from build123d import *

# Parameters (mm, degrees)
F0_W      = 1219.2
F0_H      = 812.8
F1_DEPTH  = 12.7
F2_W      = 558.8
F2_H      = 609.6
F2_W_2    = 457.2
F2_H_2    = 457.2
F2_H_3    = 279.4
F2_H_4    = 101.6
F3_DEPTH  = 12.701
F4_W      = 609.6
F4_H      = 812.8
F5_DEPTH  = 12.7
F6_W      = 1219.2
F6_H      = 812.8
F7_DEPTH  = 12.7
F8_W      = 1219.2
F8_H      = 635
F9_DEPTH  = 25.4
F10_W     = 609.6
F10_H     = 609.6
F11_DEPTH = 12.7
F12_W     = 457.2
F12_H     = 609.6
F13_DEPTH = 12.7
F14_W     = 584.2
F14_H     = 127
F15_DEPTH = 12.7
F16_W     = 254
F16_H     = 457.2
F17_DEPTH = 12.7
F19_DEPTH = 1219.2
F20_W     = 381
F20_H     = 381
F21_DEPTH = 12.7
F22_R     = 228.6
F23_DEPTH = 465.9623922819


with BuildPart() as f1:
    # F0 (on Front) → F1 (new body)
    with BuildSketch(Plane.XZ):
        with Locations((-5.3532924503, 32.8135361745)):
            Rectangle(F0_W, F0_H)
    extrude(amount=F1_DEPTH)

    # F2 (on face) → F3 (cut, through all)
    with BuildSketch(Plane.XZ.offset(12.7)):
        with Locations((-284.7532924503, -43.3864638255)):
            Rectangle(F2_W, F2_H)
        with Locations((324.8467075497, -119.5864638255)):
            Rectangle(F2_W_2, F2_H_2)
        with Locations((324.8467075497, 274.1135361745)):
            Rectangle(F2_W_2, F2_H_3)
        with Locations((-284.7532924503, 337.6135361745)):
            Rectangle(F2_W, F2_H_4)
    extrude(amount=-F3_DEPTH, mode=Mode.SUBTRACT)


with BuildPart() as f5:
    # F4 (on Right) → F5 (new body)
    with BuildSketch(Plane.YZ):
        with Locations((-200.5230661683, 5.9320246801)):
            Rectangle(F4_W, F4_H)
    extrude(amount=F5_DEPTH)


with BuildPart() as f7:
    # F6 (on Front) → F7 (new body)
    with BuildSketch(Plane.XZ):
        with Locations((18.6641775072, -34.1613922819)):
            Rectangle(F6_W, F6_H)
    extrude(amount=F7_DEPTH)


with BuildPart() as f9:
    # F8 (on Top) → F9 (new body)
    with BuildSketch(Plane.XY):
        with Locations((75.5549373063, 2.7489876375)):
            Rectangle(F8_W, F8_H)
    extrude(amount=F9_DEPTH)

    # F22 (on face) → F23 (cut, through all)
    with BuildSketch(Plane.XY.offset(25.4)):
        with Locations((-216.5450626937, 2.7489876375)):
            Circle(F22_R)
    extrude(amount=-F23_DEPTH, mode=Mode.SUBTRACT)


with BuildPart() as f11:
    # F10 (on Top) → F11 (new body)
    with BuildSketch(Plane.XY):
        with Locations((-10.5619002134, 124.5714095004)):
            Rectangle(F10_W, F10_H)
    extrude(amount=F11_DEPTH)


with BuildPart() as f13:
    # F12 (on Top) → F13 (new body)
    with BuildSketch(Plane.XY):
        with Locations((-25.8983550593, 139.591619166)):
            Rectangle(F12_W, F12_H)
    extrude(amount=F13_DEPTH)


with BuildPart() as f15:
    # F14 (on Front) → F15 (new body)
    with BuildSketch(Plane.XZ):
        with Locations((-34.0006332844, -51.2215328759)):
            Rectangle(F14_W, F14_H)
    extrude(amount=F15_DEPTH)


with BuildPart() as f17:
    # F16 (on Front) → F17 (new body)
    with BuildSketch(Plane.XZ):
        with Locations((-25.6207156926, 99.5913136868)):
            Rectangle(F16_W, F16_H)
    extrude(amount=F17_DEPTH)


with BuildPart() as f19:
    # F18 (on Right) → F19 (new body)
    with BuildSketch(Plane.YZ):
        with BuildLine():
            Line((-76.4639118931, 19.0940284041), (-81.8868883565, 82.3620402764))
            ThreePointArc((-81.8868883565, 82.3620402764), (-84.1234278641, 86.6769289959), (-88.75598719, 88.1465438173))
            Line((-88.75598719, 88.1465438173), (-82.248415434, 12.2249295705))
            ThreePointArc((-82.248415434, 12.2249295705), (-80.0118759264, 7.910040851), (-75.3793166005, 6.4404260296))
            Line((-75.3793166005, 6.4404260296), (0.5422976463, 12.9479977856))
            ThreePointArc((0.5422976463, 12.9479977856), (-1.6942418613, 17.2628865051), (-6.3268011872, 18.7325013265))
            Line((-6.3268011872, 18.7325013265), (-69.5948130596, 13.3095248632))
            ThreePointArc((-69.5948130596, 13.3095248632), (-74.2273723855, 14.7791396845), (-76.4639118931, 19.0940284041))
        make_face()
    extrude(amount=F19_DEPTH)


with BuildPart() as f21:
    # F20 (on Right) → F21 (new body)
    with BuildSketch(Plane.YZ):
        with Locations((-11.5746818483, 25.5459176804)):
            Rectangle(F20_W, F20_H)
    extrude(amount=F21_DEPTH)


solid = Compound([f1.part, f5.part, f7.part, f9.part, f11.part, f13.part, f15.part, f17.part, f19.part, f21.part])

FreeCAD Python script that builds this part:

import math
import FreeCAD as App
import Part
import Sketcher
Q = App.Units.Quantity


def add_polygon(sketch, points):
    """Adds a closed chain of lines whose ends are joined by coincident constraints."""
    first, n = sketch.GeometryCount, len(points)
    for a, b in zip(points, points[1:] + points[:1]):
        sketch.addGeometry(Part.LineSegment(App.Vector(*a, 0), App.Vector(*b, 0)), False)
    for i in range(n):
        sketch.addConstraint(Sketcher.Constraint("Coincident", first + i, 2, first + (i + 1) % n, 1))

doc = App.newDocument("Part")
body = doc.addObject("PartDesign::Body", "Body")

# Sketch on XZ plane
sketch1 = body.newObject("Sketcher::SketchObject", "Sketch")
sketch1.AttachmentSupport = (doc.getObject("XZ_Plane"), [""])
sketch1.MapMode = "FlatFace"
add_polygon(sketch1, [(-615, 439), (-615, -374), (604, -374), (604, 439)])  # lines 0-3
sketch1.addConstraint([
    Sketcher.Constraint("Vertical", 0),
    Sketcher.Constraint("Horizontal", 1),
    Sketcher.Constraint("Vertical", 2),
    Sketcher.Constraint("Horizontal", 3),
    Sketcher.Constraint("DistanceX", 1, 1, 1, 2, Q("48 in")),
    Sketcher.Constraint("DistanceY", 0, 2, 0, 1, Q("32 in")),
    Sketcher.Constraint("DistanceX", 0, 2, -1, 1, Q("614.953292 mm")),
    Sketcher.Constraint("DistanceY", 0, 2, -1, 1, Q("373.586464 mm")),
])
pad1 = body.newObject("PartDesign::Pad", "Pad")
pad1.Profile = sketch1
pad1.Length = Q("0.5 in")

# Sketch on XZ plane
sketch2 = body.newObject("Sketcher::SketchObject", "Sketch001")
sketch2.AttachmentSupport = (doc.getObject("XZ_Plane"), [""])
sketch2.MapMode = "FlatFace"
sketch2.AttachmentOffset = App.Placement(App.Vector(0, 0, 0.5 * 25.4), App.Rotation())
add_polygon(sketch2, [(-564, 261), (-564, -348), (-5, -348), (-5, 261)])  # lines 0-3
add_polygon(sketch2, [(96, 109), (96, -348), (553, -348), (553, 109)])  # lines 4-7
add_polygon(sketch2, [(96, 414), (96, 134), (553, 134), (553, 414)])  # lines 8-11
add_polygon(sketch2, [(-564, 388), (-564, 287), (-5, 287), (-5, 388)])  # lines 12-15
sketch2.addConstraint([
    Sketcher.Constraint("Vertical", 0),
    Sketcher.Constraint("Horizontal", 1),
    Sketcher.Constraint("Vertical", 2),
    Sketcher.Constraint("Horizontal", 3),
    Sketcher.Constraint("Vertical", 4),
    Sketcher.Constraint("Horizontal", 5),
    Sketcher.Constraint("Vertical", 6),
    Sketcher.Constraint("Horizontal", 7),
    Sketcher.Constraint("Vertical", 8),
    Sketcher.Constraint("Horizontal", 9),
    Sketcher.Constraint("Vertical", 10),
    Sketcher.Constraint("Horizontal", 11),
    Sketcher.Constraint("Vertical", 12),
    Sketcher.Constraint("Horizontal", 13),
    Sketcher.Constraint("Vertical", 14),
    Sketcher.Constraint("Horizontal", 15),
    Sketcher.Constraint("Horizontal", 1, 2, 4, 2),
    Sketcher.Constraint("Vertical", 7, 2, 8, 2),
    Sketcher.Constraint("Vertical", 6, 2, 9, 2),
    Sketcher.Constraint("Vertical", 3, 2, 12, 2),
    Sketcher.Constraint("Vertical", 2, 2, 13, 2),
    Sketcher.Constraint("Equal", 11, 4),
    Sketcher.Constraint("DistanceX", 1, 1, 1, 2, Q("22 in")),
    Sketcher.Constraint("DistanceX", 5, 1, 5, 2, Q("18 in")),
    Sketcher.Constraint("DistanceY", 0, 2, 0, 1, Q("24 in")),
    Sketcher.Constraint("DistanceY", 8, 2, 8, 1, Q("11 in")),
    Sketcher.Constraint("DistanceY", 12, 2, 12, 1, Q("4 in")),
    Sketcher.Constraint("DistanceX", 1, 2, 4, 2, Q("4 in")),
    Sketcher.Constraint("DistanceY", 7, 2, 8, 2, Q("1 in")),
    Sketcher.Constraint("DistanceY", 3, 2, 12, 2, Q("1 in")),
    Sketcher.Constraint("DistanceX", 0, 2, -1, 1, Q("564.153292 mm")),
    Sketcher.Constraint("DistanceY", 0, 2, -1, 1, Q("348.186464 mm")),
])
pocket1 = body.newObject("PartDesign::Pocket", "Pocket")
pocket1.Profile = sketch2
pocket1.Type = "ThroughAll"
body2 = doc.addObject("PartDesign::Body", "Body001")

# Sketch on YZ plane
sketch3 = body2.newObject("Sketcher::SketchObject", "Sketch002")
sketch3.AttachmentSupport = (doc.getObject("YZ_Plane001"), [""])
sketch3.MapMode = "FlatFace"
add_polygon(sketch3, [(-505, 412), (-505, -400), (104, -400), (104, 412)])  # lines 0-3
sketch3.addConstraint([
    Sketcher.Constraint("Vertical", 0),
    Sketcher.Constraint("Horizontal", 1),
    Sketcher.Constraint("Vertical", 2),
    Sketcher.Constraint("Horizontal", 3),
    Sketcher.Constraint("DistanceX", 1, 1, 1, 2, Q("24 in")),
    Sketcher.Constraint("DistanceY", 0, 2, 0, 1, Q("32 in")),
    Sketcher.Constraint("DistanceX", 0, 2, -1, 1, Q("505.323066 mm")),
    Sketcher.Constraint("DistanceY", 0, 2, -1, 1, Q("400.467975 mm")),
])
pad2 = body2.newObject("PartDesign::Pad", "Pad001")
pad2.Profile = sketch3
pad2.Length = Q("0.5 in")
body3 = doc.addObject("PartDesign::Body", "Body002")

# Sketch on XZ plane
sketch4 = body3.newObject("Sketcher::SketchObject", "Sketch003")
sketch4.AttachmentSupport = (doc.getObject("XZ_Plane002"), [""])
sketch4.MapMode = "FlatFace"
add_polygon(sketch4, [(-591, 372), (-591, -441), (628, -441), (628, 372)])  # lines 0-3
sketch4.addConstraint([
    Sketcher.Constraint("Vertical", 0),
    Sketcher.Constraint("Horizontal", 1),
    Sketcher.Constraint("Vertical", 2),
    Sketcher.Constraint("Horizontal", 3),
    Sketcher.Constraint("DistanceX", 1, 1, 1, 2, Q("48 in")),
    Sketcher.Constraint("DistanceY", 0, 2, 0, 1, Q("32 in")),
    Sketcher.Constraint("DistanceX", 0, 2, -1, 1, Q("590.935822 mm")),
    Sketcher.Constraint("DistanceY", 0, 2, -1, 1, Q("440.561392 mm")),
])
pad3 = body3.newObject("PartDesign::Pad", "Pad002")
pad3.Profile = sketch4
pad3.Length = Q("0.5 in")
body4 = doc.addObject("PartDesign::Body", "Body003")

# Sketch on XY plane
sketch5 = body4.newObject("Sketcher::SketchObject", "Sketch004")
sketch5.AttachmentSupport = (doc.getObject("XY_Plane003"), [""])
sketch5.MapMode = "FlatFace"
add_polygon(sketch5, [(-534, 320), (-534, -315), (685, -315), (685, 320)])  # lines 0-3
sketch5.addConstraint([
    Sketcher.Constraint("Vertical", 0),
    Sketcher.Constraint("Horizontal", 1),
    Sketcher.Constraint("Vertical", 2),
    Sketcher.Constraint("Horizontal", 3),
    Sketcher.Constraint("DistanceX", 1, 1, 1, 2, Q("48 in")),
    Sketcher.Constraint("DistanceY", 0, 2, 0, 1, Q("25 in")),
    Sketcher.Constraint("DistanceX", 0, 2, -1, 1, Q("534.045063 mm")),
    Sketcher.Constraint("DistanceY", 0, 2, -1, 1, Q("314.751012 mm")),
])
pad4 = body4.newObject("PartDesign::Pad", "Pad003")
pad4.Profile = sketch5
pad4.Length = Q("1 in")

# Sketch on XY plane
sketch6 = body4.newObject("Sketcher::SketchObject", "Sketch005")
sketch6.AttachmentSupport = (doc.getObject("XY_Plane003"), [""])
sketch6.MapMode = "FlatFace"
sketch6.AttachmentOffset = App.Placement(App.Vector(0, 0, 1 * 25.4), App.Rotation())
sketch6.addGeometry(Part.Circle(App.Vector(-217, 3, 0), App.Vector(0, 0, 1), 229), False)
sketch6.addConstraint([
    Sketcher.Constraint("Diameter", 0, Q("18 in")),
    Sketcher.Constraint("DistanceX", 0, 3, -1, 1, Q("216.545063 mm")),
    Sketcher.Constraint("DistanceY", -1, 1, 0, 3, Q("2.748988 mm")),
])
pocket2 = body4.newObject("PartDesign::Pocket", "Pocket001")
pocket2.Profile = sketch6
pocket2.Type = "ThroughAll"
body5 = doc.addObject("PartDesign::Body", "Body004")

# Sketch on XY plane
sketch7 = body5.newObject("Sketcher::SketchObject", "Sketch006")
sketch7.AttachmentSupport = (doc.getObject("XY_Plane004"), [""])
sketch7.MapMode = "FlatFace"
add_polygon(sketch7, [(-315, 429), (-315, -180), (294, -180), (294, 429)])  # lines 0-3
sketch7.addConstraint([
    Sketcher.Constraint("Vertical", 0),
    Sketcher.Constraint("Horizontal", 1),
    Sketcher.Constraint("Vertical", 2),
    Sketcher.Constraint("Horizontal", 3),
    Sketcher.Constraint("Equal", 3, 0),
    Sketcher.Constraint("DistanceX", 1, 1, 1, 2, Q("24 in")),
    Sketcher.Constraint("DistanceX", 0, 2, -1, 1, Q("315.3619 mm")),
    Sketcher.Constraint("DistanceY", 0, 2, -1, 1, Q("180.22859 mm")),
])
pad5 = body5.newObject("PartDesign::Pad", "Pad004")
pad5.Profile = sketch7
pad5.Length = Q("0.5 in")
body6 = doc.addObject("PartDesign::Body", "Body005")

# Sketch on XY plane
sketch8 = body6.newObject("Sketcher::SketchObject", "Sketch007")
sketch8.AttachmentSupport = (doc.getObject("XY_Plane005"), [""])
sketch8.MapMode = "FlatFace"
add_polygon(sketch8, [(-254, 444), (-254, -165), (203, -165), (203, 444)])  # lines 0-3
sketch8.addConstraint([
    Sketcher.Constraint("Vertical", 0),
    Sketcher.Constraint("Horizontal", 1),
    Sketcher.Constraint("Vertical", 2),
    Sketcher.Constraint("Horizontal", 3),
    Sketcher.Constraint("DistanceX", 1, 1, 1, 2, Q("18 in")),
    Sketcher.Constraint("DistanceY", 0, 2, 0, 1, Q("24 in")),
    Sketcher.Constraint("DistanceY", 0, 2, -1, 1, Q("165.208381 mm")),
    Sketcher.Constraint("DistanceX", 0, 2, -1, 1, Q("254.498355 mm")),
])
pad6 = body6.newObject("PartDesign::Pad", "Pad005")
pad6.Profile = sketch8
pad6.Length = Q("0.5 in")
body7 = doc.addObject("PartDesign::Body", "Body006")

# Sketch on XZ plane
sketch9 = body7.newObject("Sketcher::SketchObject", "Sketch008")
sketch9.AttachmentSupport = (doc.getObject("XZ_Plane006"), [""])
sketch9.MapMode = "FlatFace"
add_polygon(sketch9, [(-326, 12), (-326, -115), (258, -115), (258, 12)])  # lines 0-3
sketch9.addConstraint([
    Sketcher.Constraint("Vertical", 0),
    Sketcher.Constraint("Horizontal", 1),
    Sketcher.Constraint("Vertical", 2),
    Sketcher.Constraint("Horizontal", 3),
    Sketcher.Constraint("DistanceX", 1, 1, 1, 2, Q("23 in")),
    Sketcher.Constraint("DistanceY", 0, 2, 0, 1, Q("5 in")),
    Sketcher.Constraint("DistanceX", 0, 2, -1, 1, Q("326.100633 mm")),
    Sketcher.Constraint("DistanceY", 0, 2, -1, 1, Q("114.721533 mm")),
])
pad7 = body7.newObject("PartDesign::Pad", "Pad006")
pad7.Profile = sketch9
pad7.Length = Q("0.5 in")
body8 = doc.addObject("PartDesign::Body", "Body007")

# Sketch on XZ plane
sketch10 = body8.newObject("Sketcher::SketchObject", "Sketch009")
sketch10.AttachmentSupport = (doc.getObject("XZ_Plane007"), [""])
sketch10.MapMode = "FlatFace"
add_polygon(sketch10, [(-153, 328), (-153, -129), (101, -129), (101, 328)])  # lines 0-3
sketch10.addConstraint([
    Sketcher.Constraint("Vertical", 0),
    Sketcher.Constraint("Horizontal", 1),
    Sketcher.Constraint("Vertical", 2),
    Sketcher.Constraint("Horizontal", 3),
    Sketcher.Constraint("DistanceX", 1, 1, 1, 2, Q("10 in")),
    Sketcher.Constraint("DistanceY", 0, 2, 0, 1, Q("18 in")),
    Sketcher.Constraint("DistanceX", 0, 2, -1, 1, Q("152.620716 mm")),
    Sketcher.Constraint("DistanceY", 0, 2, -1, 1, Q("129.008686 mm")),
])
pad8 = body8.newObject("PartDesign::Pad", "Pad007")
pad8.Profile = sketch10
pad8.Length = Q("0.5 in")
body9 = doc.addObject("PartDesign::Body", "Body008")

# Sketch on YZ plane
sketch11 = body9.newObject("Sketcher::SketchObject", "Sketch010")
sketch11.AttachmentSupport = (doc.getObject("YZ_Plane008"), [""])
sketch11.MapMode = "FlatFace"
sketch11.addGeometry([
    Part.LineSegment(App.Vector(-76, 19, 0), App.Vector(-82, 82, 0)),  # 0
    Part.ArcOfCircle(Part.Circle(App.Vector(-88, 82, 0), App.Vector(0, 0, 1), 6), math.radians(5), math.radians(95)),  # 1
    Part.LineSegment(App.Vector(-89, 88, 0), App.Vector(-82, 12, 0)),  # 2
    Part.ArcOfCircle(Part.Circle(App.Vector(-76, 13, 0), App.Vector(0, 0, 1), 6), math.radians(-175), math.radians(-85)),  # 3
    Part.LineSegment(App.Vector(-75, 6, 0), App.Vector(1, 13, 0)),  # 4
    Part.ArcOfCircle(Part.Circle(App.Vector(-6, 12, 0), App.Vector(0, 0, 1), 6), math.radians(5), math.radians(95)),  # 5
    Part.LineSegment(App.Vector(-6, 19, 0), App.Vector(-70, 13, 0)),  # 6
    Part.ArcOfCircle(Part.Circle(App.Vector(-70, 20, 0), App.Vector(0, 0, 1), 6), math.radians(-175), math.radians(-85)),  # 7
], False)
sketch11.addConstraint([
    Sketcher.Constraint("Tangent", 0, 2, 1, 1),
    Sketcher.Constraint("Coincident", 1, 2, 2, 1),
    Sketcher.Constraint("Tangent", 2, 2, 3, 1),
    Sketcher.Constraint("Tangent", 3, 2, 4, 1),
    Sketcher.Constraint("Coincident", 4, 2, 5, 1),
    Sketcher.Constraint("Tangent", 5, 2, 6, 1),
    Sketcher.Constraint("Tangent", 6, 2, 7, 2),
    Sketcher.Constraint("Tangent", 7, 1, 0, 1),
    Sketcher.Constraint("Equal", 1, 3),
    Sketcher.Constraint("Equal", 3, 5),
    Sketcher.Constraint("Equal", 5, 7),
    Sketcher.Constraint("Parallel", 0, 2),
    Sketcher.Constraint("Perpendicular", 2, 4),
    Sketcher.Constraint("Parallel", 4, 6),
    Sketcher.Constraint("Equal", 2, 4),
    Sketcher.Constraint("Equal", 0, 6),
    Sketcher.Constraint("Radius", 1, Q("0.25 in")),
    Sketcher.Constraint("Distance", 2, Q("3 in")),
    Sketcher.Constraint("Distance", 0, Q("2.5 in")),
    Sketcher.Constraint("DistanceY", -1, 1, 0, 2, Q("3.2426 in")),
    Sketcher.Constraint("DistanceY", -1, 1, 5, 2, Q("0.7375001 in")),
    Sketcher.Constraint("DistanceX", 5, 2, -1, 1, Q("6.326801 mm")),
])
pad9 = body9.newObject("PartDesign::Pad", "Pad008")
pad9.Profile = sketch11
pad9.Length = Q("48 in")
body10 = doc.addObject("PartDesign::Body", "Body009")

# Sketch on YZ plane
sketch12 = body10.newObject("Sketcher::SketchObject", "Sketch011")
sketch12.AttachmentSupport = (doc.getObject("YZ_Plane009"), [""])
sketch12.MapMode = "FlatFace"
add_polygon(sketch12, [(-202, 216), (-202, -165), (179, -165), (179, 216)])  # lines 0-3
sketch12.addConstraint([
    Sketcher.Constraint("Vertical", 0),
    Sketcher.Constraint("Horizontal", 1),
    Sketcher.Constraint("Vertical", 2),
    Sketcher.Constraint("Horizontal", 3),
    Sketcher.Constraint("Equal", 3, 0),
    Sketcher.Constraint("DistanceX", 1, 1, 1, 2, Q("15 in")),
    Sketcher.Constraint("DistanceX", 0, 2, -1, 1, Q("202.074682 mm")),
    Sketcher.Constraint("DistanceY", 0, 2, -1, 1, Q("164.954082 mm")),
])
pad10 = body10.newObject("PartDesign::Pad", "Pad009")
pad10.Profile = sketch12
pad10.Length = Q("0.5 in")

doc.recompute()
